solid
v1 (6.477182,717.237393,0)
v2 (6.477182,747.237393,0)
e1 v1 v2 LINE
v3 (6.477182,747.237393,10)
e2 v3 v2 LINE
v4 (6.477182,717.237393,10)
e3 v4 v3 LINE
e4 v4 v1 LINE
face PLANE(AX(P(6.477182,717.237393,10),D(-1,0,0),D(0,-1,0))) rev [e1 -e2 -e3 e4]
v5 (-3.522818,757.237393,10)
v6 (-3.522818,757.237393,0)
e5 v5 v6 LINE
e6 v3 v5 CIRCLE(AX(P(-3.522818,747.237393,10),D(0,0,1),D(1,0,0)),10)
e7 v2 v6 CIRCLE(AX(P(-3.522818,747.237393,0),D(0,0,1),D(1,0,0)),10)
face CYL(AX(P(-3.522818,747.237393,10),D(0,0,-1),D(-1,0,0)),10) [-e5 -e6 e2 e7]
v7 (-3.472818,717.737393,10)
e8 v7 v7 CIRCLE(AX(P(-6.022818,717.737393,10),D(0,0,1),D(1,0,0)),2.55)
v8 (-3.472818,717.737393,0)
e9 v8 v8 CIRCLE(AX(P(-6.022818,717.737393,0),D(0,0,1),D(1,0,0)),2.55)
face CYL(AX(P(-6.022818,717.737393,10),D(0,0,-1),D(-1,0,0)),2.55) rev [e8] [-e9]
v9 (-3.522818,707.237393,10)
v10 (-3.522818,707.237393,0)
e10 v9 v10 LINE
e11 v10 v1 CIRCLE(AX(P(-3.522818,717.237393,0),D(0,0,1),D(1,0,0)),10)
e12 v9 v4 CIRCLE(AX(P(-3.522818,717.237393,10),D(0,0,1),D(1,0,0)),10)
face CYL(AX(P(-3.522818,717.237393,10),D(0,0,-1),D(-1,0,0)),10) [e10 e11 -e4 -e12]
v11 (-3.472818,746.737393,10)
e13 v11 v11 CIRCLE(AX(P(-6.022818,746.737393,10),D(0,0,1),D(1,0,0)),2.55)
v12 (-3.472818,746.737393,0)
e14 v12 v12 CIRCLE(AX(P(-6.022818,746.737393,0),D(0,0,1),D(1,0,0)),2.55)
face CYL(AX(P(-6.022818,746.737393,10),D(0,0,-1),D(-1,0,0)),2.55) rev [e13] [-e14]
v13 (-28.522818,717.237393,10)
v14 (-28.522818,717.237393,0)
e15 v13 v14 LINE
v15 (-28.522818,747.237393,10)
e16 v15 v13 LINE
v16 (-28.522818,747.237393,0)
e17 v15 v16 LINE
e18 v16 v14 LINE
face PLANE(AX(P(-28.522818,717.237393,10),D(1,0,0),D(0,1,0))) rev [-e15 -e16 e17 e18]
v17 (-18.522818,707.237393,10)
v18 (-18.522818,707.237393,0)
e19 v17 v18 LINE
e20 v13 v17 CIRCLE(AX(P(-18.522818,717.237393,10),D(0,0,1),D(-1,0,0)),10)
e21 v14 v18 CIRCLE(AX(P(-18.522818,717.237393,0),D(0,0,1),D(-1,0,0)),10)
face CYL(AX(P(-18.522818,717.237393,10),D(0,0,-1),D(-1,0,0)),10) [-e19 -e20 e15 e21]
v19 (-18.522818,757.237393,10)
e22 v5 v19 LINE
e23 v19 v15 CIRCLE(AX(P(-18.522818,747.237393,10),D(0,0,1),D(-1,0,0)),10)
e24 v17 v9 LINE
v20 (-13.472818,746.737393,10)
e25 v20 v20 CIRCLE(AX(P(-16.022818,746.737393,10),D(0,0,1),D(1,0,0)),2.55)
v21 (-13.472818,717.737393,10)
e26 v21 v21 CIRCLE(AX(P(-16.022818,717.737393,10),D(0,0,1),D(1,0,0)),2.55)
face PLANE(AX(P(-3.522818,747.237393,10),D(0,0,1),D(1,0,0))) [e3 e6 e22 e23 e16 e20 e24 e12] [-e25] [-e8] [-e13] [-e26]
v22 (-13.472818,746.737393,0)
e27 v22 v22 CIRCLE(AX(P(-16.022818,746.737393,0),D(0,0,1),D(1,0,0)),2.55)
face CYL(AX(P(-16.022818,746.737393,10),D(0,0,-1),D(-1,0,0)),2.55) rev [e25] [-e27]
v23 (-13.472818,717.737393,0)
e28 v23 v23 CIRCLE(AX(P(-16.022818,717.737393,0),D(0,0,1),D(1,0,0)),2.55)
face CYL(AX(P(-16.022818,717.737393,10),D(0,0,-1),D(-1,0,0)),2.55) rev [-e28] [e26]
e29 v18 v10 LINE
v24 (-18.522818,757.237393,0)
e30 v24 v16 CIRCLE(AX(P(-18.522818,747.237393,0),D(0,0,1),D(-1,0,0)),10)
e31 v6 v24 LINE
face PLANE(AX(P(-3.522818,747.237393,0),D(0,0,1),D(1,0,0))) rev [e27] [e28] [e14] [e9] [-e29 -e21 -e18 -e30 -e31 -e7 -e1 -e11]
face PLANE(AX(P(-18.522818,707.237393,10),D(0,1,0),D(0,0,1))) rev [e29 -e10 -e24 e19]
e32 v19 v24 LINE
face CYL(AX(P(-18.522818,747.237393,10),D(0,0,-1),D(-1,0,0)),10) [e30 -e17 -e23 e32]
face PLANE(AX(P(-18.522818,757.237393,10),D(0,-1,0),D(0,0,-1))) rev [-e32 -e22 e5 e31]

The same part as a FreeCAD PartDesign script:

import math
import FreeCAD as App
import Part
import Sketcher
from FreeCAD import Vector

doc = App.newDocument("Part")
body = doc.addObject("PartDesign::Body", "Body")

# Sketch on XY plane
sketch1 = body.newObject("Sketcher::SketchObject", "Sketch")
sketch1.AttachmentSupport = (doc.getObject("XY_Plane"), [""])
sketch1.MapMode = "FlatFace"
sketch1.addGeometry([
    Part.LineSegment(Vector(6.5, 717.2, 0), Vector(6.5, 747.2, 0)),  # 0
    Part.ArcOfCircle(Part.Circle(Vector(-3.5, 747.2, 0), Vector(0, 0, 1), 10), math.radians(0), math.radians(90)),  # 1
    Part.LineSegment(Vector(-3.5, 757.2, 0), Vector(-18.5, 757.2, 0)),  # 2
    Part.ArcOfCircle(Part.Circle(Vector(-18.5, 747.2, 0), Vector(0, 0, 1), 10), math.radians(90), math.radians(180)),  # 3
    Part.LineSegment(Vector(-28.5, 747.2, 0), Vector(-28.5, 717.2, 0)),  # 4
    Part.ArcOfCircle(Part.Circle(Vector(-18.5, 717.2, 0), Vector(0, 0, 1), 10), math.radians(-180), math.radians(-90)),  # 5
    Part.LineSegment(Vector(-18.5, 707.2, 0), Vector(-3.5, 707.2, 0)),  # 6
    Part.ArcOfCircle(Part.Circle(Vector(-3.5, 717.2, 0), Vector(0, 0, 1), 10), math.radians(-90), math.radians(0)),  # 7
    Part.Circle(Vector(-16, 717.7, 0), Vector(0, 0, 1), 2.5),  # 8
    Part.Circle(Vector(-6, 717.7, 0), Vector(0, 0, 1), 2.5),  # 9
    Part.Circle(Vector(-16, 746.7, 0), Vector(0, 0, 1), 2.5),  # 10
    Part.Circle(Vector(-6, 746.7, 0), Vector(0, 0, 1), 2.5),  # 11
], False)
sketch1.addConstraint([
    Sketcher.Constraint("Tangent", 0, 2, 1, 1),
    Sketcher.Constraint("Tangent", 1, 2, 2, 1),
    Sketcher.Constraint("Tangent", 2, 2, 3, 1),
    Sketcher.Constraint("Tangent", 3, 2, 4, 1),
    Sketcher.Constraint("Tangent", 4, 2, 5, 1),
    Sketcher.Constraint("Tangent", 5, 2, 6, 1),
    Sketcher.Constraint("Tangent", 6, 2, 7, 1),
    Sketcher.Constraint("Tangent", 7, 2, 0, 1),
    Sketcher.Constraint("Vertical", 0),
    Sketcher.Constraint("Horizontal", 2),
    Sketcher.Constraint("Vertical", 4),
    Sketcher.Constraint("Horizontal", 6),
    Sketcher.Constraint("Equal", 1, 3),
    Sketcher.Constraint("Equal", 3, 5),
    Sketcher.Constraint("Equal", 5, 7),
    Sketcher.Constraint("Equal", 8, 9),
    Sketcher.Constraint("Equal", 9, 10),
    Sketcher.Constraint("Equal", 10, 11),
    Sketcher.Constraint("Horizontal", 8, 3, 9, 3),
    Sketcher.Constraint("Horizontal", 10, 3, 11, 3),
    Sketcher.Constraint("Vertical", 8, 3, 10, 3),
    Sketcher.Constraint("Vertical", 9, 3, 11, 3),
    Sketcher.Constraint("Radius", 1, 10.0),
    Sketcher.Constraint("Diameter", 8, 5.1),
    Sketcher.Constraint("DistanceX", 2, 2, 2, 1, 15.0),
    Sketcher.Constraint("DistanceY", 0, 1, 0, 2, 30.0),
    Sketcher.Constraint("DistanceX", 8, 3, 9, 3, 10.0),
    Sketcher.Constraint("DistanceY", 8, 3, 10, 3, 29.0),
    Sketcher.Constraint("DistanceX", 5, 3, 8, 3, 2.5),
    Sketcher.Constraint("DistanceY", 5, 3, 8, 3, 0.5),
    Sketcher.Constraint("DistanceX", 1, 3, -1, 1, 3.522818),
    Sketcher.Constraint("DistanceY", -1, 1, 1, 3, 747.237393),
])
pad1 = body.newObject("PartDesign::Pad", "Pad")
pad1.Profile = sketch1
pad1.Length = 10

doc.recompute()
